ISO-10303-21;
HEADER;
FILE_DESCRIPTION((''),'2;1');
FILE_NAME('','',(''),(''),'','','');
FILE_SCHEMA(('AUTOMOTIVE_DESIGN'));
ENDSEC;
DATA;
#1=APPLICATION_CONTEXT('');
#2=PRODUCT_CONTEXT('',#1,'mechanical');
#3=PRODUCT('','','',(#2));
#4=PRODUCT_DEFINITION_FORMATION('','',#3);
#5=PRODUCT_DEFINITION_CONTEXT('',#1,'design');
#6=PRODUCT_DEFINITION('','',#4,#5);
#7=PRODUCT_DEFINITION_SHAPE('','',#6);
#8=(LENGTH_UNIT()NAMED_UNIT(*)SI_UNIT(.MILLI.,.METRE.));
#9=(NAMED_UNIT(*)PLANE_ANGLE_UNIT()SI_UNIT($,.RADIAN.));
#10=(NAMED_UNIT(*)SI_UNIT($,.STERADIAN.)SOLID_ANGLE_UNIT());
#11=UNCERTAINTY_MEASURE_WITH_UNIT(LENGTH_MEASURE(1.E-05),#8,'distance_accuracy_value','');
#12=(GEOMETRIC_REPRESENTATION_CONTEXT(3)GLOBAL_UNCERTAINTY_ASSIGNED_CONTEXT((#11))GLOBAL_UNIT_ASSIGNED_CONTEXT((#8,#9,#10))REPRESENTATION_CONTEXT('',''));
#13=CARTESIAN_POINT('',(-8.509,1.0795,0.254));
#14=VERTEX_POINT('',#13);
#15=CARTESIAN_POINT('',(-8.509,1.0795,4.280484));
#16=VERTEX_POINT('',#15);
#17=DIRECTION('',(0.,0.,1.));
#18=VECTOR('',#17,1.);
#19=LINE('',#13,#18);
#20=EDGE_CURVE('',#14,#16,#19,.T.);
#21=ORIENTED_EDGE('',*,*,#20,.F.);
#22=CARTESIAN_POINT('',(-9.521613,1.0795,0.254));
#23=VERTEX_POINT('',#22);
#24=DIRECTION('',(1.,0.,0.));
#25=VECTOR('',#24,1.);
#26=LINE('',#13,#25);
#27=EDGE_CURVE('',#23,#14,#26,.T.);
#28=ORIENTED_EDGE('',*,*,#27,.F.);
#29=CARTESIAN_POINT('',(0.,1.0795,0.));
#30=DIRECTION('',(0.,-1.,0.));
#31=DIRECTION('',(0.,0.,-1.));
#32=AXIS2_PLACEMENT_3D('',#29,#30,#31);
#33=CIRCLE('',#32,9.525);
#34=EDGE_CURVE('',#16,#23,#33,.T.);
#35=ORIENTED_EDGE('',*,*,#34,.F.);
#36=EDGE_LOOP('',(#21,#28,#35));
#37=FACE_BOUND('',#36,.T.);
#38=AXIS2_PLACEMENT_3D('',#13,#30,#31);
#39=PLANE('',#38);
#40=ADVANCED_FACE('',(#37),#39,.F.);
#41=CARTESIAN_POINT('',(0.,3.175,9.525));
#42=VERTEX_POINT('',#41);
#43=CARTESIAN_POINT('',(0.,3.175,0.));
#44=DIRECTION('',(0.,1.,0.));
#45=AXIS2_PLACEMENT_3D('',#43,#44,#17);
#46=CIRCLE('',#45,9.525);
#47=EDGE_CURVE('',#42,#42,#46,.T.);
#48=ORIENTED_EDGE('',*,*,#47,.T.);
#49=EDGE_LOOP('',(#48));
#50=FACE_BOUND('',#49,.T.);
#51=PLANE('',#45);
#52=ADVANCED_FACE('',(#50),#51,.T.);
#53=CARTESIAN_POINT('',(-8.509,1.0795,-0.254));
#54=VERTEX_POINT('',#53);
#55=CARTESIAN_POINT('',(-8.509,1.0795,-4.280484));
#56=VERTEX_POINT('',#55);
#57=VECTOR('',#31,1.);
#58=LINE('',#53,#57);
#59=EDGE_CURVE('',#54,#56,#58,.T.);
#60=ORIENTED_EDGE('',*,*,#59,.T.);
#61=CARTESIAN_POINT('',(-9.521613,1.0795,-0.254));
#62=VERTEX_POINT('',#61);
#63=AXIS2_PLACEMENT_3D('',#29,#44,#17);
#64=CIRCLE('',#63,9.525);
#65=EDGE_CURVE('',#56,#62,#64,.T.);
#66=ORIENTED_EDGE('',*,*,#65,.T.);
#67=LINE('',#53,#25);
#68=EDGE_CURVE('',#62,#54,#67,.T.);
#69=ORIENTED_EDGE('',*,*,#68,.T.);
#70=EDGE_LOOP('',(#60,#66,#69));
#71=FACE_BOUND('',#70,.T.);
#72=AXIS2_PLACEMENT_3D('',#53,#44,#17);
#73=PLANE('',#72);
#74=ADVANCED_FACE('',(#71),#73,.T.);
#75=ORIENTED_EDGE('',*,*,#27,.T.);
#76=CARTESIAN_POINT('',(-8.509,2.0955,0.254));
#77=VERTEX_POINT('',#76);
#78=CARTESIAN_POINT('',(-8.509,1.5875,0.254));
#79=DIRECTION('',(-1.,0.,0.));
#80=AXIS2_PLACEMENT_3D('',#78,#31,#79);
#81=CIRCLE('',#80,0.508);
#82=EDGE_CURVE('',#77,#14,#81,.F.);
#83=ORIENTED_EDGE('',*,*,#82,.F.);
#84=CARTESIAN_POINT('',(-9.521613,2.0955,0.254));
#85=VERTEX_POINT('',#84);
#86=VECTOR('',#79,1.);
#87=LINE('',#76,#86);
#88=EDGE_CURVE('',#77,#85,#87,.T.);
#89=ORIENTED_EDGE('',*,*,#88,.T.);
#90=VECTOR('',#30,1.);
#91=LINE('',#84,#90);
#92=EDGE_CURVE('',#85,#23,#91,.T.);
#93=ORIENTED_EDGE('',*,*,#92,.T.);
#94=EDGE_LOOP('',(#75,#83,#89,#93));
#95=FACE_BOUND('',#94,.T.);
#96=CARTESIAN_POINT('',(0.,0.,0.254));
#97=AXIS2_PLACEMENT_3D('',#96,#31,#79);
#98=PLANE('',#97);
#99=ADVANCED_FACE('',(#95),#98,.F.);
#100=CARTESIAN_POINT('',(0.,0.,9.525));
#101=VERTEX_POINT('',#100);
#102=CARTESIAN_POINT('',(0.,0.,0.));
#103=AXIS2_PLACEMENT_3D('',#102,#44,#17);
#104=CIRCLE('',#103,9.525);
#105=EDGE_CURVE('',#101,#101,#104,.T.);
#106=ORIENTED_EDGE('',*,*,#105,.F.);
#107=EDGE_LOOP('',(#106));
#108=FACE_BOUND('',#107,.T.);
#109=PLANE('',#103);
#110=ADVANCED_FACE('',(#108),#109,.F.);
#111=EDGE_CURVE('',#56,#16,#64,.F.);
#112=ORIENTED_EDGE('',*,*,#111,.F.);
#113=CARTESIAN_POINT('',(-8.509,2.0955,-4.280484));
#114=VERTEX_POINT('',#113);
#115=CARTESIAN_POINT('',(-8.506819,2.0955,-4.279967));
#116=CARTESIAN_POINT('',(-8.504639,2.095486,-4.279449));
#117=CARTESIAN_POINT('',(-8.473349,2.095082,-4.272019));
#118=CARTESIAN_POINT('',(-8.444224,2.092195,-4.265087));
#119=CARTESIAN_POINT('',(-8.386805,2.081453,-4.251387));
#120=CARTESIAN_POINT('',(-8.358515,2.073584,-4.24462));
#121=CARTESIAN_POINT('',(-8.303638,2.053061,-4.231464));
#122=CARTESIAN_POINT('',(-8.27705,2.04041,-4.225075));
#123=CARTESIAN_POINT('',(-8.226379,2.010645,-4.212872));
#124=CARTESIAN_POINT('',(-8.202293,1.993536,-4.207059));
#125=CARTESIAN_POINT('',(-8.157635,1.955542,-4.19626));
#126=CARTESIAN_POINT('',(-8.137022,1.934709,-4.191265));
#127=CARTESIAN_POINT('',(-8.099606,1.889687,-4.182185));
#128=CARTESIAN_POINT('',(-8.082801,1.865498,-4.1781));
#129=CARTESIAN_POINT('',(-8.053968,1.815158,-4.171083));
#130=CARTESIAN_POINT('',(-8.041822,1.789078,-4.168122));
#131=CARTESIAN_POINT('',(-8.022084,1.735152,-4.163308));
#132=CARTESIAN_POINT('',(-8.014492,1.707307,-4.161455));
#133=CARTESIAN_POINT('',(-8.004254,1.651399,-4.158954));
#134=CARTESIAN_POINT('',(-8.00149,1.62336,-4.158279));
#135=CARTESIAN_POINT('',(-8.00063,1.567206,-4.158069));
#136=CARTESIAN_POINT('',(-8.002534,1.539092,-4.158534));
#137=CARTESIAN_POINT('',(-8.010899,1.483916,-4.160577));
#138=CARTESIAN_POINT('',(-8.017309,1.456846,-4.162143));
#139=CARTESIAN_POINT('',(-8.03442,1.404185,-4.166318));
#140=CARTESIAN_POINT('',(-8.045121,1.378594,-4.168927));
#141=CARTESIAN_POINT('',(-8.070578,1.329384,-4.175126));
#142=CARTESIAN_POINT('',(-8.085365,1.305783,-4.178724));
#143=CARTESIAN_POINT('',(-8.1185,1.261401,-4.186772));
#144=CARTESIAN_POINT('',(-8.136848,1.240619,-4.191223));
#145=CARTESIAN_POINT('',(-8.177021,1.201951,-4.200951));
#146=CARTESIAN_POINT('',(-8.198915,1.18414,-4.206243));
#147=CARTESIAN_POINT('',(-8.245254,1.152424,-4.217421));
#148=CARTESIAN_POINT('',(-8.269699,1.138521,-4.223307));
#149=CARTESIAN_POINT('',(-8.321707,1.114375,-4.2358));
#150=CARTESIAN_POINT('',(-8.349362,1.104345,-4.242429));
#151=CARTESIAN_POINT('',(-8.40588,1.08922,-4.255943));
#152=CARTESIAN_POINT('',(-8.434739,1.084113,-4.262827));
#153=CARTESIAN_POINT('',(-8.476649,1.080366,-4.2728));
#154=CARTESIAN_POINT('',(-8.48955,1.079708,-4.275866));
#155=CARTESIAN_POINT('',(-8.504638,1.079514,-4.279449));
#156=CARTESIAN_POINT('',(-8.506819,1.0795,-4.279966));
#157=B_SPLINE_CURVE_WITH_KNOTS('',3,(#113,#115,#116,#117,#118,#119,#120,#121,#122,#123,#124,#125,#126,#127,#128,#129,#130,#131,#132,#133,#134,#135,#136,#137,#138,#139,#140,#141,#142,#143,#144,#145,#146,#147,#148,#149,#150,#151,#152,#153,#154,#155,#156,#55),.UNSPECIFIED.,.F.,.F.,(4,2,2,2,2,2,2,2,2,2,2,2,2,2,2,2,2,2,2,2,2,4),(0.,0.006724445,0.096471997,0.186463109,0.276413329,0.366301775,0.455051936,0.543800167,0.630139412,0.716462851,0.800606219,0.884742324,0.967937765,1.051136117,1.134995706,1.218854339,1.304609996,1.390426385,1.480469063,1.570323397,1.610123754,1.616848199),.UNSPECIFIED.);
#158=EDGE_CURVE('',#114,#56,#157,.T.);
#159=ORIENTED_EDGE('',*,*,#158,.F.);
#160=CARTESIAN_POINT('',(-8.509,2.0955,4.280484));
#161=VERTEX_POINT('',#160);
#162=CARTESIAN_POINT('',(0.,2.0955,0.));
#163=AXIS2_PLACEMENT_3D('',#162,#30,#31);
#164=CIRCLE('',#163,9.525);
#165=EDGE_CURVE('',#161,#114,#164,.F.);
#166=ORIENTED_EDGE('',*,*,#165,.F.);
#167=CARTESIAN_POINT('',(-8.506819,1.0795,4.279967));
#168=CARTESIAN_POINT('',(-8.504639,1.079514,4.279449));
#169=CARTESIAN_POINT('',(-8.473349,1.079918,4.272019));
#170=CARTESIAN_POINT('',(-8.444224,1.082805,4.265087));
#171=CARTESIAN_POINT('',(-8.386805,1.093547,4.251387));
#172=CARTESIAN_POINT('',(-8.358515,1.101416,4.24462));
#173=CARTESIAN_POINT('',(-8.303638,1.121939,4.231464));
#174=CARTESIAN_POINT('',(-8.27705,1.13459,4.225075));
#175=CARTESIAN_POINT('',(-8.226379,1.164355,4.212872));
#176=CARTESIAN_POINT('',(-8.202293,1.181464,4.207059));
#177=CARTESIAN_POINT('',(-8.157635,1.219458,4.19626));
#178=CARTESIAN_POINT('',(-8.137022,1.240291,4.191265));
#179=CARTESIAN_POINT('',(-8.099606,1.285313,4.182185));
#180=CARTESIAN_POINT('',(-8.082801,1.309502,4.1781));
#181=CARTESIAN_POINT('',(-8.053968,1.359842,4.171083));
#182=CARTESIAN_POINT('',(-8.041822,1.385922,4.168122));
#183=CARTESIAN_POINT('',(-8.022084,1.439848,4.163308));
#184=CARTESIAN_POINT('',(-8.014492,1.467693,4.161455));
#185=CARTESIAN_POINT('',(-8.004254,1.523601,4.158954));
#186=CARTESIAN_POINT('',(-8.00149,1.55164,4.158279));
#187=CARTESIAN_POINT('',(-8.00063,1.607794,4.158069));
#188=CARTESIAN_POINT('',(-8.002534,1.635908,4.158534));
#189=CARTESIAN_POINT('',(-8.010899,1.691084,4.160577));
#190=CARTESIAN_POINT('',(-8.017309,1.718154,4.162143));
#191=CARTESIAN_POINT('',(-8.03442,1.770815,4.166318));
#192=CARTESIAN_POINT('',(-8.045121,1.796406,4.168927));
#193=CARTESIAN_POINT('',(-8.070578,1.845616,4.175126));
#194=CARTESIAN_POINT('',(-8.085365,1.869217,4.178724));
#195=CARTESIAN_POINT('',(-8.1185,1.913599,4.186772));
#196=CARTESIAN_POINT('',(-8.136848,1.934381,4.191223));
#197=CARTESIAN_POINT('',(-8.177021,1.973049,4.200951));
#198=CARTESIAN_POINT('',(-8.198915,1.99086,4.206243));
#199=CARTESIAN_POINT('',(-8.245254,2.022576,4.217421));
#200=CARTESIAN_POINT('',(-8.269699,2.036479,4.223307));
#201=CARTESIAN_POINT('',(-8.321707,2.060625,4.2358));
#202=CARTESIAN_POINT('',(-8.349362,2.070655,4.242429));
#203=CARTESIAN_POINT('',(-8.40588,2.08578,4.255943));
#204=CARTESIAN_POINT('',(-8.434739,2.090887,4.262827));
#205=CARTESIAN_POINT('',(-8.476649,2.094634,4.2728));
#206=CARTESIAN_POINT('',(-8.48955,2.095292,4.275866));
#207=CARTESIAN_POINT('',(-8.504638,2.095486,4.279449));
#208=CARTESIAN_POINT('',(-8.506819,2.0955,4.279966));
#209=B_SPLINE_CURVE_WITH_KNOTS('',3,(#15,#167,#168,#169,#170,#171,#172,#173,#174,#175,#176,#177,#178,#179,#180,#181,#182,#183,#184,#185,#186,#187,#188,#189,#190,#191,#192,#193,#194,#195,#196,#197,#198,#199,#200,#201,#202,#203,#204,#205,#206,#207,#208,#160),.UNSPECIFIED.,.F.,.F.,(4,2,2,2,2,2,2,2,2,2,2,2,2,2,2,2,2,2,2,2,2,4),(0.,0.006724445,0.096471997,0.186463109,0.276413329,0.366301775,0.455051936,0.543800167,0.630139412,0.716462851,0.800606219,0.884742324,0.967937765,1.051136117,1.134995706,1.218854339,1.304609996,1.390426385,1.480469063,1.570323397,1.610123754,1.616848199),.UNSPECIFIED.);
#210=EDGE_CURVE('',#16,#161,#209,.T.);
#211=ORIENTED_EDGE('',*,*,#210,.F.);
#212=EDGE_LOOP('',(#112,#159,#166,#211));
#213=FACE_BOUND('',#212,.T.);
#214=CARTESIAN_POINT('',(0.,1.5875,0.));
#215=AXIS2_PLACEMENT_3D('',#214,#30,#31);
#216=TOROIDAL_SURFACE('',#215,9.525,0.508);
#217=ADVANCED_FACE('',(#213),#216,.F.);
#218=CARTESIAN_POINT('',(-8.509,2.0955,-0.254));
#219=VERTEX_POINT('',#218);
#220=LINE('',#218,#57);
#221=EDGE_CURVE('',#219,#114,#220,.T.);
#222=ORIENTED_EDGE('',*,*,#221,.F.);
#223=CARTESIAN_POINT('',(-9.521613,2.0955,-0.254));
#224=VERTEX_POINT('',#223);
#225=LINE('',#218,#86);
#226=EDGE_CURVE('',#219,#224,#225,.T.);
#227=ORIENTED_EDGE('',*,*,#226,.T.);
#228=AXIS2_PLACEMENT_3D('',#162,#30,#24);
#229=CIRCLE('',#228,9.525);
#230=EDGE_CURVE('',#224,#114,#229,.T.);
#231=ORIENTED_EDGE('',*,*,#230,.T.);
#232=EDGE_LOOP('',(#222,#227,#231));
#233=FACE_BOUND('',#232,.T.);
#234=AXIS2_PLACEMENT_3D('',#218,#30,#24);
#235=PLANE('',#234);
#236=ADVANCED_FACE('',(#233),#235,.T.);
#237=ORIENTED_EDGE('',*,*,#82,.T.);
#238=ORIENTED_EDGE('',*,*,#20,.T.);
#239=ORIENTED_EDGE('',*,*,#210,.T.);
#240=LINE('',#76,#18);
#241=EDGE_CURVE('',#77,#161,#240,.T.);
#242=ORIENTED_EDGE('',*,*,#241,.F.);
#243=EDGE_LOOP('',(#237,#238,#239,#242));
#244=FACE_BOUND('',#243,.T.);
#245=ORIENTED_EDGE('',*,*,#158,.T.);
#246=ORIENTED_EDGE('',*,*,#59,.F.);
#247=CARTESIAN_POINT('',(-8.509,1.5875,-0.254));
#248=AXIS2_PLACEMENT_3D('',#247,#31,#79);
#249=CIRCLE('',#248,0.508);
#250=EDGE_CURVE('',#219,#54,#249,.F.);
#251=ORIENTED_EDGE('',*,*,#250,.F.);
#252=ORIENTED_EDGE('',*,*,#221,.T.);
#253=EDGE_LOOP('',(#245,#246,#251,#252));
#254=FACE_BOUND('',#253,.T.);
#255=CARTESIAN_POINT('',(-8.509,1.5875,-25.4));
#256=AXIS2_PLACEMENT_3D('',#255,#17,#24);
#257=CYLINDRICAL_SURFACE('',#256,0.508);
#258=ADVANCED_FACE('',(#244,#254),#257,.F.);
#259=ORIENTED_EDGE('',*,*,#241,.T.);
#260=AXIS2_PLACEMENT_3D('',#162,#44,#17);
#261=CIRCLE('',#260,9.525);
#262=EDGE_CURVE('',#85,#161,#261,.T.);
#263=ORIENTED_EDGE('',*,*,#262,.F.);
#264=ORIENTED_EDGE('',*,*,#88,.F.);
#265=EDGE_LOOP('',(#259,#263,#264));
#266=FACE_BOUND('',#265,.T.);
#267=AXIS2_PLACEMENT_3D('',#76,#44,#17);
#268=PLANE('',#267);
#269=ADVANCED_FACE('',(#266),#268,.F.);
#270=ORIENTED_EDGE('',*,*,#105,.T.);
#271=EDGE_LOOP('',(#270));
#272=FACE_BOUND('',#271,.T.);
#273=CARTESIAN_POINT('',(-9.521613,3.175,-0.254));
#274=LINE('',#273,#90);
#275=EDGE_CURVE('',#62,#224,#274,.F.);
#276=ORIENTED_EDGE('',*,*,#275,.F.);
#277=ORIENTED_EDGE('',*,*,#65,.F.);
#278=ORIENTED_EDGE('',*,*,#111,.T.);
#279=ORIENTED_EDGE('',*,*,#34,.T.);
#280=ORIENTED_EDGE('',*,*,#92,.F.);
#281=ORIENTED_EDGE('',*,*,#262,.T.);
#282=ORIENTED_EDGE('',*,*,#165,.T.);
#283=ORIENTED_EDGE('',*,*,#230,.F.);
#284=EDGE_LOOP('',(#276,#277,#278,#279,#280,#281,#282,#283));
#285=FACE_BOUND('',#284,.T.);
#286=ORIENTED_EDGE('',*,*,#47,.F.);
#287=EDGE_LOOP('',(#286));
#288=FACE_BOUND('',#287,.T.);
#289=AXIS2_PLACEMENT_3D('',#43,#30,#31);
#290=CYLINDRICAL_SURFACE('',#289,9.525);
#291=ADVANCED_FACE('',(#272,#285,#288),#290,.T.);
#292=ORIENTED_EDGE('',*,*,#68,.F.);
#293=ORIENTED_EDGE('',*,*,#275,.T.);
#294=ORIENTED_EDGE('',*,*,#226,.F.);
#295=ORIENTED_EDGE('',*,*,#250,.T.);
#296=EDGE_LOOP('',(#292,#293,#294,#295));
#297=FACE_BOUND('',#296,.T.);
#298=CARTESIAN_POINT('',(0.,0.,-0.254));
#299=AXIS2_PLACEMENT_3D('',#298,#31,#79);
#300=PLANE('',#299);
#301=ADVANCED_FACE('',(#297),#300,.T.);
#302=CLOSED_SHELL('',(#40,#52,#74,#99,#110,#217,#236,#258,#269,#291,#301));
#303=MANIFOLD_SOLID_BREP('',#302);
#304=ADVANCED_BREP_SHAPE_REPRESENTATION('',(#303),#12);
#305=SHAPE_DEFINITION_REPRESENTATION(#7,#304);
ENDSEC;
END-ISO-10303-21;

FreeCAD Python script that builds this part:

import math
import FreeCAD as App
import Part
import Sketcher
Q = App.Units.Quantity


def add_polygon(sketch, points):
    """Adds a closed chain of lines whose ends are joined by coincident constraints."""
    first, n = sketch.GeometryCount, len(points)
    for a, b in zip(points, points[1:] + points[:1]):
        sketch.addGeometry(Part.LineSegment(App.Vector(*a, 0), App.Vector(*b, 0)), False)
    for i in range(n):
        sketch.addConstraint(Sketcher.Constraint("Coincident", first + i, 2, first + (i + 1) % n, 1))

doc = App.newDocument("Part")
body = doc.addObject("PartDesign::Body", "Body")

sketch1 = body.newObject("Sketcher::SketchObject", "Sketch")
sketch1.AttachmentSupport = (doc.getObject("XZ_Plane"), [""])
sketch1.MapMode = "FlatFace"
sketch1.addGeometry(Part.Circle(App.Vector(0, 0, 0), App.Vector(0, 0, 1), 10), False)
sketch1.addConstraint(Sketcher.Constraint("Coincident", 0, 3, -1, 1))
sketch1.addConstraint(Sketcher.Constraint("Diameter", 0, Q("0.75 in")))
pad1 = body.newObject("PartDesign::Pad", "Pad")
pad1.Profile = sketch1
pad1.Length = Q("0.125 in")
pad1.Reversed = True

sketch2 = body.newObject("Sketcher::SketchObject", "Sketch001")
sketch2.AttachmentSupport = (doc.getObject("XY_Plane"), [""])
sketch2.MapMode = "FlatFace"
sketch2.addGeometry(Part.Circle(App.Vector(-8.5, 1.6, 0), App.Vector(0, 0, 1), 0.5), False)
sketch2.addConstraint(Sketcher.Constraint("Diameter", 0, Q("0.04 in")))
sketch2.addConstraint(Sketcher.Constraint("DistanceX", 0, 3, -1, 1, Q("0.335 in")))
sketch2.addConstraint(Sketcher.Constraint("DistanceY", -1, 1, 0, 3, Q("0.0625 in")))
pocket1 = body.newObject("PartDesign::Pocket", "Pocket")
pocket1.Profile = sketch2
pocket1.Length = Q("2 in")
pocket1.Midplane = True

sketch3 = body.newObject("Sketcher::SketchObject", "Sketch002")
sketch3.AttachmentSupport = (doc.getObject("XY_Plane"), [""])
sketch3.MapMode = "FlatFace"
sketch3.AttachmentOffset = App.Placement(App.Vector(0, 0, -0.3 * 25.4), App.Rotation())
add_polygon(sketch3, [(-9.5, 2.1), (-9.5, 1.1), (-8.5, 1.1), (-8.5, 2.1)])
sketch3.addConstraint(Sketcher.Constraint("Vertical", 0))
sketch3.addConstraint(Sketcher.Constraint("Horizontal", 1))
sketch3.addConstraint(Sketcher.Constraint("Vertical", 2))
sketch3.addConstraint(Sketcher.Constraint("Horizontal", 3))
sketch3.addConstraint(Sketcher.Constraint("Equal", 3, 0))
sketch3.addConstraint(Sketcher.Constraint("DistanceX", 1, 1, 1, 2, Q("0.04 in")))
sketch3.addConstraint(Sketcher.Constraint("DistanceX", 0, 2, -1, 1, Q("0.375 in")))
sketch3.addConstraint(Sketcher.Constraint("DistanceY", -1, 1, 0, 2, Q("0.0425 in")))
pocket2 = body.newObject("PartDesign::Pocket", "Pocket001")
pocket2.Profile = sketch3
pocket2.Length = Q("0.29 in")
pocket2.Reversed = True

sketch4 = body.newObject("Sketcher::SketchObject", "Sketch003")
sketch4.AttachmentSupport = (doc.getObject("XY_Plane"), [""])
sketch4.MapMode = "FlatFace"
sketch4.AttachmentOffset = App.Placement(App.Vector(0, 0, 0.3 * 25.4), App.Rotation())
add_polygon(sketch4, [(-9.5, 2.1), (-9.5, 1.1), (-8.5, 1.1), (-8.5, 2.1)])
sketch4.addConstraint(Sketcher.Constraint("Vertical", 0))
sketch4.addConstraint(Sketcher.Constraint("Horizontal", 1))
sketch4.addConstraint(Sketcher.Constraint("Vertical", 2))
sketch4.addConstraint(Sketcher.Constraint("Horizontal", 3))
sketch4.addConstraint(Sketcher.Constraint("DistanceY", 0, 2, 0, 1, Q("0.04 in")))
sketch4.addConstraint(Sketcher.Constraint("DistanceX", 1, 2, -1, 1, Q("0.335 in")))
sketch4.addConstraint(Sketcher.Constraint("DistanceY", -1, 1, 0, 2, Q("0.0425 in")))
sketch4.addConstraint(Sketcher.Constraint("DistanceX", 1, 1, 1, 2, 1.012613))
pocket3 = body.newObject("PartDesign::Pocket", "Pocket002")
pocket3.Profile = sketch4
pocket3.Length = Q("0.29 in")

sketch5 = body.newObject("Sketcher::SketchObject", "Sketch004")
sketch5.AttachmentSupport = (doc.getObject("XY_Plane"), [""])
sketch5.MapMode = "FlatFace"
sketch5.addGeometry(Part.Circle(App.Vector(9.5, 1.6, 0), App.Vector(0, 0, 1), 0.5), False)
sketch5.addConstraint(Sketcher.Constraint("Diameter", 0, Q("0.04 in")))
sketch5.addConstraint(Sketcher.Constraint("DistanceX", -1, 1, 0, 3, Q("0.375 in")))
sketch5.addConstraint(Sketcher.Constraint("DistanceY", -1, 1, 0, 3, Q("0.0625 in")))

sketch6 = body.newObject("Sketcher::SketchObject", "Sketch005")
sketch6.AttachmentSupport = (doc.getObject("XZ_Plane"), [""])
sketch6.MapMode = "FlatFace"
sketch6.addGeometry(Part.ArcOfCircle(Part.Circle(App.Vector(0, 0, 0), App.Vector(0, 0, 1), 7.6), math.radians(-172), math.radians(172)), False)
sketch6.addConstraint(Sketcher.Constraint("Coincident", 0, 3, -1, 1))
sketch6.addConstraint(Sketcher.Constraint("Radius", 0, Q("0.3 in")))
sketch6.addConstraint(Sketcher.Constraint("DistanceX", 0, 1, -1, 1, 7.55481))
sketch6.addConstraint(Sketcher.Constraint("DistanceX", 0, 2, -1, 1, 7.55481))
doc.recompute()

subtractivepipe = body.newObject("PartDesign::SubtractivePipe", "SubtractivePipe")
subtractivepipe.Profile = sketch5
subtractivepipe.Spine = (sketch6, ["Edge1"])

doc.recompute()
